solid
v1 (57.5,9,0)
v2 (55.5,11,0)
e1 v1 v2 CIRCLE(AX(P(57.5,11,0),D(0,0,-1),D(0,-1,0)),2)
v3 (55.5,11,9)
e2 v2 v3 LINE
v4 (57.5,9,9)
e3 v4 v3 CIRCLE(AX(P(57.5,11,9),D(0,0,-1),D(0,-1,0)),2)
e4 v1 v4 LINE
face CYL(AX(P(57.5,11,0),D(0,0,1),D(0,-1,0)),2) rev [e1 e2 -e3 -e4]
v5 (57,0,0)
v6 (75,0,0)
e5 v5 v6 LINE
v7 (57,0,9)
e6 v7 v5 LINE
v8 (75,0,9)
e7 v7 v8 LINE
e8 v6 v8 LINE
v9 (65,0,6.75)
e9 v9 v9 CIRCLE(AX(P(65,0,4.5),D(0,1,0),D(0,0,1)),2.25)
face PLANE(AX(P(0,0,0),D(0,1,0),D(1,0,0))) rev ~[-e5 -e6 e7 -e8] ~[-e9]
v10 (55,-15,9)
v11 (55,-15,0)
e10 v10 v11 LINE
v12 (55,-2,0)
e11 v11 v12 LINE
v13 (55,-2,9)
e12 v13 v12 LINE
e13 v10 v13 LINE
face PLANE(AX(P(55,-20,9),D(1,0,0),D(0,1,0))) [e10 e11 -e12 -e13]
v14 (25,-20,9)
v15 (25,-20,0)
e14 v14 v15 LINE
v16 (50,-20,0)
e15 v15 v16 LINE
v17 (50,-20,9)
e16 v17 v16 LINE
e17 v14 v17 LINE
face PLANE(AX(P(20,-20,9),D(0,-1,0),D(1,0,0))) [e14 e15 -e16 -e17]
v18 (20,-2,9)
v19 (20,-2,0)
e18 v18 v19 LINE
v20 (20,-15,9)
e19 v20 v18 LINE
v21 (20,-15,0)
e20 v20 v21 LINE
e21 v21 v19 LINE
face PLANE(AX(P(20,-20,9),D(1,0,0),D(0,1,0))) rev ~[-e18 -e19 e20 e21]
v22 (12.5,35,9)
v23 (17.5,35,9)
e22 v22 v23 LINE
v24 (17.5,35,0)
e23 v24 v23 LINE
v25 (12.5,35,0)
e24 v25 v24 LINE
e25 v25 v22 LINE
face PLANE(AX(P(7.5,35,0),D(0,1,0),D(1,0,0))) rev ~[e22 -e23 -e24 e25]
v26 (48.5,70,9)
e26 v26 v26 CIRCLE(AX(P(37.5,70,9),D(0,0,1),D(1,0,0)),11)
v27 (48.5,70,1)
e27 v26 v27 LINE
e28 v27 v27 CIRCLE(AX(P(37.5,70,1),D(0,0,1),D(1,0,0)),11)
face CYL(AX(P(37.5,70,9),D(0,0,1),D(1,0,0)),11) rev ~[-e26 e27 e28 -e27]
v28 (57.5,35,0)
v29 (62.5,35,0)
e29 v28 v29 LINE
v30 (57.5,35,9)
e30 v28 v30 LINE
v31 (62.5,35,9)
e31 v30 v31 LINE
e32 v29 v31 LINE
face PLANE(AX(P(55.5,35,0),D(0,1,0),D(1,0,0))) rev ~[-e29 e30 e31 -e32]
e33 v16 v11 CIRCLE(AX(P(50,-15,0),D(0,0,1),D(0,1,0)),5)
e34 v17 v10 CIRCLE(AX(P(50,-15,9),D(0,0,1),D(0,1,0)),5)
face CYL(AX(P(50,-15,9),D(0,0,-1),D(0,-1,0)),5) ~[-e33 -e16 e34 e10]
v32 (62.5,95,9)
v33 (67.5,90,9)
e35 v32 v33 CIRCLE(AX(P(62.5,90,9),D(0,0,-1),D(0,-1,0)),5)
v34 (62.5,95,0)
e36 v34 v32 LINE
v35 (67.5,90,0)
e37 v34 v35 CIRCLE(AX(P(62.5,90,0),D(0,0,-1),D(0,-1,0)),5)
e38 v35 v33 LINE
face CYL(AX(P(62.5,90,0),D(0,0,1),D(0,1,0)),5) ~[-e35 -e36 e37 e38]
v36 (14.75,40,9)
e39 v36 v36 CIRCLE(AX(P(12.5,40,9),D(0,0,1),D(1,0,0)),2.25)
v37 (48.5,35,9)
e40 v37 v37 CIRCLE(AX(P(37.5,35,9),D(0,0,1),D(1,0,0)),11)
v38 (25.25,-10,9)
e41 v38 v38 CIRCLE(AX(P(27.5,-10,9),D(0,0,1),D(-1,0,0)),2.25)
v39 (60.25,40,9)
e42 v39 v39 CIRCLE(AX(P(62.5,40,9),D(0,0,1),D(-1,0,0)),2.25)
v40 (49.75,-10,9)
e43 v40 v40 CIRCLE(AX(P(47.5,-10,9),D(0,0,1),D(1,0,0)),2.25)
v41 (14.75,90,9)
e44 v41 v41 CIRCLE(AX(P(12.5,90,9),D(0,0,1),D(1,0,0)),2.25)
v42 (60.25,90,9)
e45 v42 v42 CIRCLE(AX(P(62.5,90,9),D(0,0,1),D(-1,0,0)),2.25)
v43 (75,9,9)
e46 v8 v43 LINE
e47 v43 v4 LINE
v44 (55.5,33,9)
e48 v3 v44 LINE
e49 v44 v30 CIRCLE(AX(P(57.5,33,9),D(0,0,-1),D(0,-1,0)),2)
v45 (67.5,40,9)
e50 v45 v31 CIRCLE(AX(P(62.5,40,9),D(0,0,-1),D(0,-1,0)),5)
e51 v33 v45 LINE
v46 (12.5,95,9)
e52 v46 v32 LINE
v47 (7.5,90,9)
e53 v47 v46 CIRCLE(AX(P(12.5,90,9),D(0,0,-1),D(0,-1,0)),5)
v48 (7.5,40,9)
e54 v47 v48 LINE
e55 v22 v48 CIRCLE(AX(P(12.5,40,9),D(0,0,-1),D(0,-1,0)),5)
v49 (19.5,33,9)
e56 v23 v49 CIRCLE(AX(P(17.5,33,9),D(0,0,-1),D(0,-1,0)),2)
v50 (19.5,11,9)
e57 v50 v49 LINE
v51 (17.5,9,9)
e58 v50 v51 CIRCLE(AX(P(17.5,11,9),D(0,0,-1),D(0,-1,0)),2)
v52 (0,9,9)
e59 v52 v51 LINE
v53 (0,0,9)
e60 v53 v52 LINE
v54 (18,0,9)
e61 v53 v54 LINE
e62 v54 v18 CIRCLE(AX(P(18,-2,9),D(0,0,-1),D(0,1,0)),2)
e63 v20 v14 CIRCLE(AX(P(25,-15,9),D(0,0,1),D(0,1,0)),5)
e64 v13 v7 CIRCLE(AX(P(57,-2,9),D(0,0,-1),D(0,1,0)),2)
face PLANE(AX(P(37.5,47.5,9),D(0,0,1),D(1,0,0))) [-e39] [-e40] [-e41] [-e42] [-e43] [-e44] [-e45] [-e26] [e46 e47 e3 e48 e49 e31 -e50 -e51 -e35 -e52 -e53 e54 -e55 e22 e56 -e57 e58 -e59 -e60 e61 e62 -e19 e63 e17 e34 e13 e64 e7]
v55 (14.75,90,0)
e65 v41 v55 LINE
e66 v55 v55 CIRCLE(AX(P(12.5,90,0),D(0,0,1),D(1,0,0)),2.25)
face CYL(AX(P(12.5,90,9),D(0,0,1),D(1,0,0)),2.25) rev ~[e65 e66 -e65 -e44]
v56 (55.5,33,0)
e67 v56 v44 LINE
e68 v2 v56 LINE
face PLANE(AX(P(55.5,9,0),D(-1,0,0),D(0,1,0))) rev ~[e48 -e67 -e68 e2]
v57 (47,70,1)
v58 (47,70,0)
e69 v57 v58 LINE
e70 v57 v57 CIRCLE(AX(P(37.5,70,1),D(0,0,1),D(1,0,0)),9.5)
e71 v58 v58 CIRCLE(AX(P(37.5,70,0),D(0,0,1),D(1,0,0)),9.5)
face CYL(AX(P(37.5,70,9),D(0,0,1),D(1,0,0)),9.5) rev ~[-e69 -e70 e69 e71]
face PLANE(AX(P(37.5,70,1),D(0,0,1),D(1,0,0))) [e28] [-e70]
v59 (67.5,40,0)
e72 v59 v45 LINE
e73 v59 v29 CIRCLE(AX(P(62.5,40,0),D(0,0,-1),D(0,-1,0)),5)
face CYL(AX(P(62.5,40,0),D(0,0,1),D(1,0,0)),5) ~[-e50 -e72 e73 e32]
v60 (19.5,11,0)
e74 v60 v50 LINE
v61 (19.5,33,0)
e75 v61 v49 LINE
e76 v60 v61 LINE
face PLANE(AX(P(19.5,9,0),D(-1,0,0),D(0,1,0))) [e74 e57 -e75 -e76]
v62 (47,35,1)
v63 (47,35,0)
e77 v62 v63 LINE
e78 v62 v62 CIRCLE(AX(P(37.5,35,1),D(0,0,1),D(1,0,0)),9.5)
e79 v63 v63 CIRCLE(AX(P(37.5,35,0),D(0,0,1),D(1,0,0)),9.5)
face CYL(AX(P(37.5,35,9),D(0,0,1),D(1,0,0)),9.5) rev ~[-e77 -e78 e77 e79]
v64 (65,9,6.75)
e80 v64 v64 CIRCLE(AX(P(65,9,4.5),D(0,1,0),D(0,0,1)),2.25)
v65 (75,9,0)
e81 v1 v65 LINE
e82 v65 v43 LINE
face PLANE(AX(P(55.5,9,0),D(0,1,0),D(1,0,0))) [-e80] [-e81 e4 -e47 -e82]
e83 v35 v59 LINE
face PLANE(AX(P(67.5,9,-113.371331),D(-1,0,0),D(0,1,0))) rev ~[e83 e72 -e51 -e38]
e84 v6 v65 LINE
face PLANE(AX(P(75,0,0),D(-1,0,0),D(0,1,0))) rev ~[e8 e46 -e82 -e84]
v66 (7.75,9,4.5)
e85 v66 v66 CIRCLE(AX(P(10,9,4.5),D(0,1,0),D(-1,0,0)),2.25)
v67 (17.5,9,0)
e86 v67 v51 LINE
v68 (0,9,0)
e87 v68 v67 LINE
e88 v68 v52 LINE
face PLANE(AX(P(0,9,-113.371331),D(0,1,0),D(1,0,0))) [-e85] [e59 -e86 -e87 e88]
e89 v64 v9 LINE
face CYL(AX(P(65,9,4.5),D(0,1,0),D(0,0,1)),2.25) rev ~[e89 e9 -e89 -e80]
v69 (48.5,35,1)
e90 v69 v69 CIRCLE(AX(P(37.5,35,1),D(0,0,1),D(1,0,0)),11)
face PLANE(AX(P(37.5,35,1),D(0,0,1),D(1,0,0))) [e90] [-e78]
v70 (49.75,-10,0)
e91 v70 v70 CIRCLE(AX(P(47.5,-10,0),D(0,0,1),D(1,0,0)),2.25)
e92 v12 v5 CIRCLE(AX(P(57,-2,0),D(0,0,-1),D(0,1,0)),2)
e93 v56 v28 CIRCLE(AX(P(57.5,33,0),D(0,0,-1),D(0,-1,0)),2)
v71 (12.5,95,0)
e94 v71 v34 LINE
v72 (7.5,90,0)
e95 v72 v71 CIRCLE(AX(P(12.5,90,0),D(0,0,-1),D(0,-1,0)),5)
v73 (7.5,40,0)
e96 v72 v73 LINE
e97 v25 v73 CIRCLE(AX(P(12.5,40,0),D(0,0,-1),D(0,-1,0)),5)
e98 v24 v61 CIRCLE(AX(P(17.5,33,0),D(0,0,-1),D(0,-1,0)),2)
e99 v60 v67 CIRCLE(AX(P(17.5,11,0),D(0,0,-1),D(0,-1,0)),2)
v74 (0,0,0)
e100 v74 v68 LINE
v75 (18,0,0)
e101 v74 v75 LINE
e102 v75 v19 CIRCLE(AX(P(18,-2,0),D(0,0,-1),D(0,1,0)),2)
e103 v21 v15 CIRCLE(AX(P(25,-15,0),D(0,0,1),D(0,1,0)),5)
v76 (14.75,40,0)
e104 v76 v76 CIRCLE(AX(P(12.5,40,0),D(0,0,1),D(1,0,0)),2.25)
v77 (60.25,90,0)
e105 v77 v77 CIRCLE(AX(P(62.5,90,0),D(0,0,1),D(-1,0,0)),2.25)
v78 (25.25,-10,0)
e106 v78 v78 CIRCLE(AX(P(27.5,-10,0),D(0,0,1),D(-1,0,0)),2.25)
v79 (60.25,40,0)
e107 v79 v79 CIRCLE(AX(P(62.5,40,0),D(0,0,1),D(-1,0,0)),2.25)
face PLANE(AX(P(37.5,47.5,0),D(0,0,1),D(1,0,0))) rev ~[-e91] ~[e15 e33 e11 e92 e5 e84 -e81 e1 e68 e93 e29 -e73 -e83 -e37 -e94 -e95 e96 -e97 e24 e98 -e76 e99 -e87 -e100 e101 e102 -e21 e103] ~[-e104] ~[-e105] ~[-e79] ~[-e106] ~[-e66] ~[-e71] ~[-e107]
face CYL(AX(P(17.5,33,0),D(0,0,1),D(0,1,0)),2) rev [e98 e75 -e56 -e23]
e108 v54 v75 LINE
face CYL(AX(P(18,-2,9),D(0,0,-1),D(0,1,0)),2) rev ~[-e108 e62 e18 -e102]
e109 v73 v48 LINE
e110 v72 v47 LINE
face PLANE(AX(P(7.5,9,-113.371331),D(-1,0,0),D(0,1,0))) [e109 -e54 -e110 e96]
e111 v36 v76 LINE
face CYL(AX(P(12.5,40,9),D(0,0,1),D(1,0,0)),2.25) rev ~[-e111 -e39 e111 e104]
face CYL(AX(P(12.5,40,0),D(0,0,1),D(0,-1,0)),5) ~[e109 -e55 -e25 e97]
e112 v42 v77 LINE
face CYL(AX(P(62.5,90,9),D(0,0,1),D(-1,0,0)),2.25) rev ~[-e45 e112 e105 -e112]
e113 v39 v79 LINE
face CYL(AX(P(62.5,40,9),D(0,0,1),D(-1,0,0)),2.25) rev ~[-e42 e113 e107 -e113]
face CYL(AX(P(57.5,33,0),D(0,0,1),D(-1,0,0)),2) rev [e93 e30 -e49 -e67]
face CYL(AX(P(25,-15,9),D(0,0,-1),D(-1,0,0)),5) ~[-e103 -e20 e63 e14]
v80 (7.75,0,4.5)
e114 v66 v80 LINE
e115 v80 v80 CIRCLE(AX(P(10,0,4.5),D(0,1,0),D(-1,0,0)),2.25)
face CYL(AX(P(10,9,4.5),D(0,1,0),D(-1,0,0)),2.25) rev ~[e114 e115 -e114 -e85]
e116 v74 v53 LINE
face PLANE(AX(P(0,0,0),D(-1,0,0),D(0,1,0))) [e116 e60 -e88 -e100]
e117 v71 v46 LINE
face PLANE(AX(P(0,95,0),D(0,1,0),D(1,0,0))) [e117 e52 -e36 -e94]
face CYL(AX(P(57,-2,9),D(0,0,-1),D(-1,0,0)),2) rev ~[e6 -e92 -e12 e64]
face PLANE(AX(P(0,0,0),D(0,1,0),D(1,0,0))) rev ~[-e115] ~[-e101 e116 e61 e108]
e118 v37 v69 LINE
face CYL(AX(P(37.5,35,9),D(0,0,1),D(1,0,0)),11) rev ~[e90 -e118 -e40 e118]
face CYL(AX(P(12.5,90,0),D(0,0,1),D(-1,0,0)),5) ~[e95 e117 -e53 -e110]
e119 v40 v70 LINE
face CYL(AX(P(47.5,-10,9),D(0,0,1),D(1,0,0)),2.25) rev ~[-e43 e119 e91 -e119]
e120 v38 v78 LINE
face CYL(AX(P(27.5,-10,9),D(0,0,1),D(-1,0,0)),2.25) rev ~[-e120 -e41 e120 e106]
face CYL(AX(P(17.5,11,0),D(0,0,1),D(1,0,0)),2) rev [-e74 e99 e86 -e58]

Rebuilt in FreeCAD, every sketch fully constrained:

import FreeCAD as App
import Part
import Sketcher

V = App.Vector
Q = App.Units.Quantity


def edges_at(feature, points):
    """Names of the edges that pass closest to the given points."""
    edges = feature.Shape.Edges
    near = lambda p: min(range(len(edges)), key=lambda i: edges[i].distToShape(Part.Vertex(*p))[0])
    return sorted({f"Edge{near(p) + 1}" for p in points})


def add_polygon(sketch, points):
    """Adds a closed chain of lines whose ends are joined by coincident constraints."""
    first, n = sketch.GeometryCount, len(points)
    for a, b in zip(points, points[1:] + points[:1]):
        sketch.addGeometry(Part.LineSegment(App.Vector(*a, 0), App.Vector(*b, 0)), False)
    for i in range(n):
        sketch.addConstraint(Sketcher.Constraint("Coincident", first + i, 2, first + (i + 1) % n, 1))

doc = App.newDocument("Part")
body = doc.addObject("PartDesign::Body", "Body")

# Sketch on XY plane
sketch1 = doc.addObject("Sketcher::SketchObject", "Sketch")
body.addObject(sketch1)
sketch1.AttachmentSupport = (doc.XY_Plane, [""])
sketch1.MapMode = "FlatFace"
add_polygon(sketch1, [(0, 95), (0, 0), (75, 0), (75, 95)])  # lines 0-3
sketch1.addConstraint([
    Sketcher.Constraint("Vertical", 0),
    Sketcher.Constraint("Horizontal", 1),
    Sketcher.Constraint("Vertical", 2),
    Sketcher.Constraint("Horizontal", 3),
    Sketcher.Constraint("Coincident", 0, 2, -1, 1),
    Sketcher.Constraint("DistanceX", 1, 1, 1, 2, Q("75 mm")),
    Sketcher.Constraint("DistanceY", 0, 2, 0, 1, Q("95 mm")),
])
pad1 = doc.addObject("PartDesign::Pad", "Pad")
body.addObject(pad1)
pad1.Profile = sketch1
pad1.Length = 9

# Sketch on XY plane
sketch2 = doc.addObject("Sketcher::SketchObject", "Sketch001")
body.addObject(sketch2)
sketch2.AttachmentSupport = (doc.XY_Plane, [""])
sketch2.MapMode = "FlatFace"
sketch2.AttachmentOffset = App.Placement(V(0, 0, 9), App.Rotation())
add_polygon(sketch2, [(20, 0), (20, -20), (55, -20), (55, 0)])  # lines 0-3
sketch2.addConstraint([
    Sketcher.Constraint("Vertical", 0),
    Sketcher.Constraint("Horizontal", 1),
    Sketcher.Constraint("Vertical", 2),
    Sketcher.Constraint("Horizontal", 3),
    Sketcher.Constraint("PointOnObject", 2, 2, -1),
    Sketcher.Constraint("DistanceX", 1, 1, 1, 2, Q("35 mm")),
    Sketcher.Constraint("DistanceY", 0, 2, 0, 1, Q("20 mm")),
    Sketcher.Constraint("DistanceX", -1, 1, 0, 2, Q("20 mm")),
])
pad2 = doc.addObject("PartDesign::Pad", "Pad001")
body.addObject(pad2)
pad2.Profile = sketch2
pad2.Length = 9
pad2.Reversed = True

# Sketch on XY plane
sketch3 = doc.addObject("Sketcher::SketchObject", "Sketch002")
body.addObject(sketch3)
sketch3.AttachmentSupport = (doc.XY_Plane, [""])
sketch3.MapMode = "FlatFace"
sketch3.AttachmentOffset = App.Placement(V(0, 0, 9), App.Rotation())
sketch3.addGeometry([
    Part.Circle(V(37.5, 70, 0), V(0, 0, 1), 11),
    Part.Circle(V(37.5, 35, 0), V(0, 0, 1), 11),
], False)
sketch3.addConstraint([
    Sketcher.Constraint("Equal", 0, 1),
    Sketcher.Constraint("Vertical", 0, 3, 1, 3),
    Sketcher.Constraint("Diameter", 0, Q("22 mm")),
    Sketcher.Constraint("DistanceY", -1, 1, 0, 3, Q("70 mm")),
    Sketcher.Constraint("DistanceY", -1, 1, 1, 3, Q("35 mm")),
    Sketcher.Constraint("DistanceX", -1, 1, 0, 3, Q("37.5 mm")),
])
pocket1 = doc.addObject("PartDesign::Pocket", "Pocket")
body.addObject(pocket1)
pocket1.Profile = sketch3
pocket1.Length = 8

# Sketch on XY plane
sketch4 = doc.addObject("Sketcher::SketchObject", "Sketch003")
body.addObject(sketch4)
sketch4.AttachmentSupport = (doc.XY_Plane, [""])
sketch4.MapMode = "FlatFace"
sketch4.AttachmentOffset = App.Placement(V(0, 0, 9), App.Rotation())
sketch4.addGeometry([
    Part.Circle(V(37.5, 70, 0), V(0, 0, 1), 9.5),
    Part.Circle(V(37.5, 35, 0), V(0, 0, 1), 9.5),
], False)
sketch4.addConstraint([
    Sketcher.Constraint("Equal", 0, 1),
    Sketcher.Constraint("Vertical", 0, 3, 1, 3),
    Sketcher.Constraint("Diameter", 0, Q("19 mm")),
    Sketcher.Constraint("DistanceY", -1, 1, 0, 3, Q("70 mm")),
    Sketcher.Constraint("DistanceY", -1, 1, 1, 3, Q("35 mm")),
    Sketcher.Constraint("DistanceX", -1, 1, 0, 3, Q("37.5 mm")),
])
pocket2 = doc.addObject("PartDesign::Pocket", "Pocket001")
body.addObject(pocket2)
pocket2.Profile = sketch4
pocket2.Type = "ThroughAll"

# Sketch on XY plane
sketch5 = doc.addObject("Sketcher::SketchObject", "Sketch004")
body.addObject(sketch5)
sketch5.AttachmentSupport = (doc.XY_Plane, [""])
sketch5.MapMode = "FlatFace"
sketch5.AttachmentOffset = App.Placement(V(0, 0, 9), App.Rotation())
add_polygon(sketch5, [(67.5, 95), (67.5, 9), (75, 9), (75, 95)])  # lines 0-3
add_polygon(sketch5, [(0, 95), (0, 9), (7.5, 9), (7.5, 95)])  # lines 4-7
sketch5.addConstraint([
    Sketcher.Constraint("Vertical", 0),
    Sketcher.Constraint("Horizontal", 1),
    Sketcher.Constraint("Vertical", 2),
    Sketcher.Constraint("Horizontal", 3),
    Sketcher.Constraint("Vertical", 4),
    Sketcher.Constraint("Horizontal", 5),
    Sketcher.Constraint("Vertical", 6),
    Sketcher.Constraint("Horizontal", 7),
    Sketcher.Constraint("PointOnObject", 4, 2, -2),
    Sketcher.Constraint("Horizontal", 1, 2, 4, 2),
    Sketcher.Constraint("Horizontal", 3, 2, 6, 2),
    Sketcher.Constraint("Equal", 3, 5),
    Sketcher.Constraint("DistanceY", 0, 2, 0, 1, Q("86 mm")),
    Sketcher.Constraint("DistanceX", 1, 1, 1, 2, Q("7.5 mm")),
    Sketcher.Constraint("DistanceY", -1, 1, 0, 2, Q("9 mm")),
    Sketcher.Constraint("DistanceX", -1, 1, 1, 2, Q("75 mm")),
])
pocket3 = doc.addObject("PartDesign::Pocket", "Pocket002")
body.addObject(pocket3)
pocket3.Profile = sketch5
pocket3.Type = "ThroughAll"
pocket3.Midplane = True

# Sketch on XY plane
sketch6 = doc.addObject("Sketcher::SketchObject", "Sketch005")
body.addObject(sketch6)
sketch6.AttachmentSupport = (doc.XY_Plane, [""])
sketch6.MapMode = "FlatFace"
add_polygon(sketch6, [(7.5, 35), (7.5, 9), (19.5, 9), (19.5, 35)])  # lines 0-3
add_polygon(sketch6, [(55.5, 35), (55.5, 9), (67.5, 9), (67.5, 35)])  # lines 4-7
sketch6.addConstraint([
    Sketcher.Constraint("Vertical", 0),
    Sketcher.Constraint("Horizontal", 1),
    Sketcher.Constraint("Vertical", 2),
    Sketcher.Constraint("Horizontal", 3),
    Sketcher.Constraint("Vertical", 4),
    Sketcher.Constraint("Horizontal", 5),
    Sketcher.Constraint("Vertical", 6),
    Sketcher.Constraint("Horizontal", 7),
    Sketcher.Constraint("Horizontal", 1, 2, 4, 2),
    Sketcher.Constraint("Horizontal", 3, 2, 6, 2),
    Sketcher.Constraint("Equal", 3, 5),
    Sketcher.Constraint("DistanceX", 1, 1, 1, 2, Q("12 mm")),
    Sketcher.Constraint("DistanceY", 0, 2, 0, 1, Q("26 mm")),
    Sketcher.Constraint("DistanceY", -1, 1, 0, 2, Q("9 mm")),
    Sketcher.Constraint("DistanceX", 1, 2, 4, 2, Q("36 mm")),
    Sketcher.Constraint("DistanceX", -1, 1, 0, 2, Q("7.5 mm")),
])
pocket4 = doc.addObject("PartDesign::Pocket", "Pocket003")
body.addObject(pocket4)
pocket4.Profile = sketch6
pocket4.Length = 9
pocket4.Reversed = True
doc.recompute()

fillet = doc.addObject("PartDesign::Fillet", "Fillet")
body.addObject(fillet)
fillet.Base = (pocket4, edges_at(pocket4, [
    (55.5, 9, 4.5),
    (55.5, 35, 4.5),
    (20, 0, 4.5),
    (55, 0, 4.5),
    (19.5, 35, 4.5),
    (19.5, 9, 4.5),
]))
fillet.Radius = 2
doc.recompute()

fillet2 = doc.addObject("PartDesign::Fillet", "Fillet001")
body.addObject(fillet2)
fillet2.Base = (fillet, edges_at(fillet, [
    (67.5, 35, 4.5),
    (20, -20, 4.5),
    (55, -20, 4.5),
    (67.5, 95, 4.5),
    (7.5, 95, 4.5),
    (7.5, 35, 4.5),
]))
fillet2.Radius = 5

# Sketch on XY plane
sketch7 = doc.addObject("Sketcher::SketchObject", "Sketch006")
body.addObject(sketch7)
sketch7.AttachmentSupport = (doc.XY_Plane, [""])
sketch7.MapMode = "FlatFace"
sketch7.AttachmentOffset = App.Placement(V(0, 0, 9), App.Rotation())
sketch7.addGeometry([
    Part.Circle(V(47.5, -10, 0), V(0, 0, 1), 2.25),  # 0
    Part.Circle(V(27.5, -10, 0), V(0, 0, 1), 2.25),  # 1
    Part.Circle(V(12.5, 90, 0), V(0, 0, 1), 2.25),  # 2
    Part.Circle(V(12.5, 40, 0), V(0, 0, 1), 2.25),  # 3
    Part.Circle(V(62.5, 40, 0), V(0, 0, 1), 2.25),  # 4
    Part.Circle(V(62.5, 90, 0), V(0, 0, 1), 2.25),  # 5
], False)
sketch7.addConstraint([
    Sketcher.Constraint("Equal", 0, 1),
    Sketcher.Constraint("Equal", 1, 2),
    Sketcher.Constraint("Equal", 2, 3),
    Sketcher.Constraint("Equal", 3, 4),
    Sketcher.Constraint("Equal", 4, 5),
    Sketcher.Constraint("Horizontal", 0, 3, 1, 3),
    Sketcher.Constraint("Horizontal", 3, 3, 4, 3),
    Sketcher.Constraint("Horizontal", 2, 3, 5, 3),
    Sketcher.Constraint("Vertical", 2, 3, 3, 3),
    Sketcher.Constraint("Vertical", 4, 3, 5, 3),
    Sketcher.Constraint("Diameter", 0, Q("4.5 mm")),
    Sketcher.Constraint("DistanceY", 0, 3, -1, 1, Q("10 mm")),
    Sketcher.Constraint("DistanceY", -1, 1, 2, 3, Q("90 mm")),
    Sketcher.Constraint("DistanceY", -1, 1, 3, 3, Q("40 mm")),
    Sketcher.Constraint("DistanceX", 1, 3, 0, 3, Q("20 mm")),
    Sketcher.Constraint("DistanceX", 2, 3, 1, 3, Q("15 mm")),
    Sketcher.Constraint("DistanceX", 3, 3, 4, 3, Q("50 mm")),
    Sketcher.Constraint("DistanceX", -1, 1, 0, 3, Q("47.5 mm")),
])
pocket5 = doc.addObject("PartDesign::Pocket", "Pocket004")
body.addObject(pocket5)
pocket5.Profile = sketch7
pocket5.Type = "ThroughAll"

# Sketch on XZ plane
sketch8 = doc.addObject("Sketcher::SketchObject", "Sketch007")
body.addObject(sketch8)
sketch8.AttachmentSupport = (doc.XZ_Plane, [""])
sketch8.MapMode = "FlatFace"
sketch8.AttachmentOffset = App.Placement(V(0, 0, -9), App.Rotation())
sketch8.addGeometry([
    Part.Circle(V(10, 4.5, 0), V(0, 0, 1), 2.25),
    Part.Circle(V(65, 4.5, 0), V(0, 0, 1), 2.25),
], False)
sketch8.addConstraint([
    Sketcher.Constraint("Equal", 0, 1),
    Sketcher.Constraint("Horizontal", 0, 3, 1, 3),
    Sketcher.Constraint("Diameter", 0, Q("4.5 mm")),
    Sketcher.Constraint("DistanceX", -1, 1, 0, 3, Q("10 mm")),
    Sketcher.Constraint("DistanceX", -1, 1, 1, 3, Q("65 mm")),
    Sketcher.Constraint("DistanceY", -1, 1, 0, 3, Q("4.5 mm")),
])
pocket6 = doc.addObject("PartDesign::Pocket", "Pocket005")
body.addObject(pocket6)
pocket6.Profile = sketch8
pocket6.Type = "ThroughAll"
pocket6.Reversed = True

doc.recompute()
